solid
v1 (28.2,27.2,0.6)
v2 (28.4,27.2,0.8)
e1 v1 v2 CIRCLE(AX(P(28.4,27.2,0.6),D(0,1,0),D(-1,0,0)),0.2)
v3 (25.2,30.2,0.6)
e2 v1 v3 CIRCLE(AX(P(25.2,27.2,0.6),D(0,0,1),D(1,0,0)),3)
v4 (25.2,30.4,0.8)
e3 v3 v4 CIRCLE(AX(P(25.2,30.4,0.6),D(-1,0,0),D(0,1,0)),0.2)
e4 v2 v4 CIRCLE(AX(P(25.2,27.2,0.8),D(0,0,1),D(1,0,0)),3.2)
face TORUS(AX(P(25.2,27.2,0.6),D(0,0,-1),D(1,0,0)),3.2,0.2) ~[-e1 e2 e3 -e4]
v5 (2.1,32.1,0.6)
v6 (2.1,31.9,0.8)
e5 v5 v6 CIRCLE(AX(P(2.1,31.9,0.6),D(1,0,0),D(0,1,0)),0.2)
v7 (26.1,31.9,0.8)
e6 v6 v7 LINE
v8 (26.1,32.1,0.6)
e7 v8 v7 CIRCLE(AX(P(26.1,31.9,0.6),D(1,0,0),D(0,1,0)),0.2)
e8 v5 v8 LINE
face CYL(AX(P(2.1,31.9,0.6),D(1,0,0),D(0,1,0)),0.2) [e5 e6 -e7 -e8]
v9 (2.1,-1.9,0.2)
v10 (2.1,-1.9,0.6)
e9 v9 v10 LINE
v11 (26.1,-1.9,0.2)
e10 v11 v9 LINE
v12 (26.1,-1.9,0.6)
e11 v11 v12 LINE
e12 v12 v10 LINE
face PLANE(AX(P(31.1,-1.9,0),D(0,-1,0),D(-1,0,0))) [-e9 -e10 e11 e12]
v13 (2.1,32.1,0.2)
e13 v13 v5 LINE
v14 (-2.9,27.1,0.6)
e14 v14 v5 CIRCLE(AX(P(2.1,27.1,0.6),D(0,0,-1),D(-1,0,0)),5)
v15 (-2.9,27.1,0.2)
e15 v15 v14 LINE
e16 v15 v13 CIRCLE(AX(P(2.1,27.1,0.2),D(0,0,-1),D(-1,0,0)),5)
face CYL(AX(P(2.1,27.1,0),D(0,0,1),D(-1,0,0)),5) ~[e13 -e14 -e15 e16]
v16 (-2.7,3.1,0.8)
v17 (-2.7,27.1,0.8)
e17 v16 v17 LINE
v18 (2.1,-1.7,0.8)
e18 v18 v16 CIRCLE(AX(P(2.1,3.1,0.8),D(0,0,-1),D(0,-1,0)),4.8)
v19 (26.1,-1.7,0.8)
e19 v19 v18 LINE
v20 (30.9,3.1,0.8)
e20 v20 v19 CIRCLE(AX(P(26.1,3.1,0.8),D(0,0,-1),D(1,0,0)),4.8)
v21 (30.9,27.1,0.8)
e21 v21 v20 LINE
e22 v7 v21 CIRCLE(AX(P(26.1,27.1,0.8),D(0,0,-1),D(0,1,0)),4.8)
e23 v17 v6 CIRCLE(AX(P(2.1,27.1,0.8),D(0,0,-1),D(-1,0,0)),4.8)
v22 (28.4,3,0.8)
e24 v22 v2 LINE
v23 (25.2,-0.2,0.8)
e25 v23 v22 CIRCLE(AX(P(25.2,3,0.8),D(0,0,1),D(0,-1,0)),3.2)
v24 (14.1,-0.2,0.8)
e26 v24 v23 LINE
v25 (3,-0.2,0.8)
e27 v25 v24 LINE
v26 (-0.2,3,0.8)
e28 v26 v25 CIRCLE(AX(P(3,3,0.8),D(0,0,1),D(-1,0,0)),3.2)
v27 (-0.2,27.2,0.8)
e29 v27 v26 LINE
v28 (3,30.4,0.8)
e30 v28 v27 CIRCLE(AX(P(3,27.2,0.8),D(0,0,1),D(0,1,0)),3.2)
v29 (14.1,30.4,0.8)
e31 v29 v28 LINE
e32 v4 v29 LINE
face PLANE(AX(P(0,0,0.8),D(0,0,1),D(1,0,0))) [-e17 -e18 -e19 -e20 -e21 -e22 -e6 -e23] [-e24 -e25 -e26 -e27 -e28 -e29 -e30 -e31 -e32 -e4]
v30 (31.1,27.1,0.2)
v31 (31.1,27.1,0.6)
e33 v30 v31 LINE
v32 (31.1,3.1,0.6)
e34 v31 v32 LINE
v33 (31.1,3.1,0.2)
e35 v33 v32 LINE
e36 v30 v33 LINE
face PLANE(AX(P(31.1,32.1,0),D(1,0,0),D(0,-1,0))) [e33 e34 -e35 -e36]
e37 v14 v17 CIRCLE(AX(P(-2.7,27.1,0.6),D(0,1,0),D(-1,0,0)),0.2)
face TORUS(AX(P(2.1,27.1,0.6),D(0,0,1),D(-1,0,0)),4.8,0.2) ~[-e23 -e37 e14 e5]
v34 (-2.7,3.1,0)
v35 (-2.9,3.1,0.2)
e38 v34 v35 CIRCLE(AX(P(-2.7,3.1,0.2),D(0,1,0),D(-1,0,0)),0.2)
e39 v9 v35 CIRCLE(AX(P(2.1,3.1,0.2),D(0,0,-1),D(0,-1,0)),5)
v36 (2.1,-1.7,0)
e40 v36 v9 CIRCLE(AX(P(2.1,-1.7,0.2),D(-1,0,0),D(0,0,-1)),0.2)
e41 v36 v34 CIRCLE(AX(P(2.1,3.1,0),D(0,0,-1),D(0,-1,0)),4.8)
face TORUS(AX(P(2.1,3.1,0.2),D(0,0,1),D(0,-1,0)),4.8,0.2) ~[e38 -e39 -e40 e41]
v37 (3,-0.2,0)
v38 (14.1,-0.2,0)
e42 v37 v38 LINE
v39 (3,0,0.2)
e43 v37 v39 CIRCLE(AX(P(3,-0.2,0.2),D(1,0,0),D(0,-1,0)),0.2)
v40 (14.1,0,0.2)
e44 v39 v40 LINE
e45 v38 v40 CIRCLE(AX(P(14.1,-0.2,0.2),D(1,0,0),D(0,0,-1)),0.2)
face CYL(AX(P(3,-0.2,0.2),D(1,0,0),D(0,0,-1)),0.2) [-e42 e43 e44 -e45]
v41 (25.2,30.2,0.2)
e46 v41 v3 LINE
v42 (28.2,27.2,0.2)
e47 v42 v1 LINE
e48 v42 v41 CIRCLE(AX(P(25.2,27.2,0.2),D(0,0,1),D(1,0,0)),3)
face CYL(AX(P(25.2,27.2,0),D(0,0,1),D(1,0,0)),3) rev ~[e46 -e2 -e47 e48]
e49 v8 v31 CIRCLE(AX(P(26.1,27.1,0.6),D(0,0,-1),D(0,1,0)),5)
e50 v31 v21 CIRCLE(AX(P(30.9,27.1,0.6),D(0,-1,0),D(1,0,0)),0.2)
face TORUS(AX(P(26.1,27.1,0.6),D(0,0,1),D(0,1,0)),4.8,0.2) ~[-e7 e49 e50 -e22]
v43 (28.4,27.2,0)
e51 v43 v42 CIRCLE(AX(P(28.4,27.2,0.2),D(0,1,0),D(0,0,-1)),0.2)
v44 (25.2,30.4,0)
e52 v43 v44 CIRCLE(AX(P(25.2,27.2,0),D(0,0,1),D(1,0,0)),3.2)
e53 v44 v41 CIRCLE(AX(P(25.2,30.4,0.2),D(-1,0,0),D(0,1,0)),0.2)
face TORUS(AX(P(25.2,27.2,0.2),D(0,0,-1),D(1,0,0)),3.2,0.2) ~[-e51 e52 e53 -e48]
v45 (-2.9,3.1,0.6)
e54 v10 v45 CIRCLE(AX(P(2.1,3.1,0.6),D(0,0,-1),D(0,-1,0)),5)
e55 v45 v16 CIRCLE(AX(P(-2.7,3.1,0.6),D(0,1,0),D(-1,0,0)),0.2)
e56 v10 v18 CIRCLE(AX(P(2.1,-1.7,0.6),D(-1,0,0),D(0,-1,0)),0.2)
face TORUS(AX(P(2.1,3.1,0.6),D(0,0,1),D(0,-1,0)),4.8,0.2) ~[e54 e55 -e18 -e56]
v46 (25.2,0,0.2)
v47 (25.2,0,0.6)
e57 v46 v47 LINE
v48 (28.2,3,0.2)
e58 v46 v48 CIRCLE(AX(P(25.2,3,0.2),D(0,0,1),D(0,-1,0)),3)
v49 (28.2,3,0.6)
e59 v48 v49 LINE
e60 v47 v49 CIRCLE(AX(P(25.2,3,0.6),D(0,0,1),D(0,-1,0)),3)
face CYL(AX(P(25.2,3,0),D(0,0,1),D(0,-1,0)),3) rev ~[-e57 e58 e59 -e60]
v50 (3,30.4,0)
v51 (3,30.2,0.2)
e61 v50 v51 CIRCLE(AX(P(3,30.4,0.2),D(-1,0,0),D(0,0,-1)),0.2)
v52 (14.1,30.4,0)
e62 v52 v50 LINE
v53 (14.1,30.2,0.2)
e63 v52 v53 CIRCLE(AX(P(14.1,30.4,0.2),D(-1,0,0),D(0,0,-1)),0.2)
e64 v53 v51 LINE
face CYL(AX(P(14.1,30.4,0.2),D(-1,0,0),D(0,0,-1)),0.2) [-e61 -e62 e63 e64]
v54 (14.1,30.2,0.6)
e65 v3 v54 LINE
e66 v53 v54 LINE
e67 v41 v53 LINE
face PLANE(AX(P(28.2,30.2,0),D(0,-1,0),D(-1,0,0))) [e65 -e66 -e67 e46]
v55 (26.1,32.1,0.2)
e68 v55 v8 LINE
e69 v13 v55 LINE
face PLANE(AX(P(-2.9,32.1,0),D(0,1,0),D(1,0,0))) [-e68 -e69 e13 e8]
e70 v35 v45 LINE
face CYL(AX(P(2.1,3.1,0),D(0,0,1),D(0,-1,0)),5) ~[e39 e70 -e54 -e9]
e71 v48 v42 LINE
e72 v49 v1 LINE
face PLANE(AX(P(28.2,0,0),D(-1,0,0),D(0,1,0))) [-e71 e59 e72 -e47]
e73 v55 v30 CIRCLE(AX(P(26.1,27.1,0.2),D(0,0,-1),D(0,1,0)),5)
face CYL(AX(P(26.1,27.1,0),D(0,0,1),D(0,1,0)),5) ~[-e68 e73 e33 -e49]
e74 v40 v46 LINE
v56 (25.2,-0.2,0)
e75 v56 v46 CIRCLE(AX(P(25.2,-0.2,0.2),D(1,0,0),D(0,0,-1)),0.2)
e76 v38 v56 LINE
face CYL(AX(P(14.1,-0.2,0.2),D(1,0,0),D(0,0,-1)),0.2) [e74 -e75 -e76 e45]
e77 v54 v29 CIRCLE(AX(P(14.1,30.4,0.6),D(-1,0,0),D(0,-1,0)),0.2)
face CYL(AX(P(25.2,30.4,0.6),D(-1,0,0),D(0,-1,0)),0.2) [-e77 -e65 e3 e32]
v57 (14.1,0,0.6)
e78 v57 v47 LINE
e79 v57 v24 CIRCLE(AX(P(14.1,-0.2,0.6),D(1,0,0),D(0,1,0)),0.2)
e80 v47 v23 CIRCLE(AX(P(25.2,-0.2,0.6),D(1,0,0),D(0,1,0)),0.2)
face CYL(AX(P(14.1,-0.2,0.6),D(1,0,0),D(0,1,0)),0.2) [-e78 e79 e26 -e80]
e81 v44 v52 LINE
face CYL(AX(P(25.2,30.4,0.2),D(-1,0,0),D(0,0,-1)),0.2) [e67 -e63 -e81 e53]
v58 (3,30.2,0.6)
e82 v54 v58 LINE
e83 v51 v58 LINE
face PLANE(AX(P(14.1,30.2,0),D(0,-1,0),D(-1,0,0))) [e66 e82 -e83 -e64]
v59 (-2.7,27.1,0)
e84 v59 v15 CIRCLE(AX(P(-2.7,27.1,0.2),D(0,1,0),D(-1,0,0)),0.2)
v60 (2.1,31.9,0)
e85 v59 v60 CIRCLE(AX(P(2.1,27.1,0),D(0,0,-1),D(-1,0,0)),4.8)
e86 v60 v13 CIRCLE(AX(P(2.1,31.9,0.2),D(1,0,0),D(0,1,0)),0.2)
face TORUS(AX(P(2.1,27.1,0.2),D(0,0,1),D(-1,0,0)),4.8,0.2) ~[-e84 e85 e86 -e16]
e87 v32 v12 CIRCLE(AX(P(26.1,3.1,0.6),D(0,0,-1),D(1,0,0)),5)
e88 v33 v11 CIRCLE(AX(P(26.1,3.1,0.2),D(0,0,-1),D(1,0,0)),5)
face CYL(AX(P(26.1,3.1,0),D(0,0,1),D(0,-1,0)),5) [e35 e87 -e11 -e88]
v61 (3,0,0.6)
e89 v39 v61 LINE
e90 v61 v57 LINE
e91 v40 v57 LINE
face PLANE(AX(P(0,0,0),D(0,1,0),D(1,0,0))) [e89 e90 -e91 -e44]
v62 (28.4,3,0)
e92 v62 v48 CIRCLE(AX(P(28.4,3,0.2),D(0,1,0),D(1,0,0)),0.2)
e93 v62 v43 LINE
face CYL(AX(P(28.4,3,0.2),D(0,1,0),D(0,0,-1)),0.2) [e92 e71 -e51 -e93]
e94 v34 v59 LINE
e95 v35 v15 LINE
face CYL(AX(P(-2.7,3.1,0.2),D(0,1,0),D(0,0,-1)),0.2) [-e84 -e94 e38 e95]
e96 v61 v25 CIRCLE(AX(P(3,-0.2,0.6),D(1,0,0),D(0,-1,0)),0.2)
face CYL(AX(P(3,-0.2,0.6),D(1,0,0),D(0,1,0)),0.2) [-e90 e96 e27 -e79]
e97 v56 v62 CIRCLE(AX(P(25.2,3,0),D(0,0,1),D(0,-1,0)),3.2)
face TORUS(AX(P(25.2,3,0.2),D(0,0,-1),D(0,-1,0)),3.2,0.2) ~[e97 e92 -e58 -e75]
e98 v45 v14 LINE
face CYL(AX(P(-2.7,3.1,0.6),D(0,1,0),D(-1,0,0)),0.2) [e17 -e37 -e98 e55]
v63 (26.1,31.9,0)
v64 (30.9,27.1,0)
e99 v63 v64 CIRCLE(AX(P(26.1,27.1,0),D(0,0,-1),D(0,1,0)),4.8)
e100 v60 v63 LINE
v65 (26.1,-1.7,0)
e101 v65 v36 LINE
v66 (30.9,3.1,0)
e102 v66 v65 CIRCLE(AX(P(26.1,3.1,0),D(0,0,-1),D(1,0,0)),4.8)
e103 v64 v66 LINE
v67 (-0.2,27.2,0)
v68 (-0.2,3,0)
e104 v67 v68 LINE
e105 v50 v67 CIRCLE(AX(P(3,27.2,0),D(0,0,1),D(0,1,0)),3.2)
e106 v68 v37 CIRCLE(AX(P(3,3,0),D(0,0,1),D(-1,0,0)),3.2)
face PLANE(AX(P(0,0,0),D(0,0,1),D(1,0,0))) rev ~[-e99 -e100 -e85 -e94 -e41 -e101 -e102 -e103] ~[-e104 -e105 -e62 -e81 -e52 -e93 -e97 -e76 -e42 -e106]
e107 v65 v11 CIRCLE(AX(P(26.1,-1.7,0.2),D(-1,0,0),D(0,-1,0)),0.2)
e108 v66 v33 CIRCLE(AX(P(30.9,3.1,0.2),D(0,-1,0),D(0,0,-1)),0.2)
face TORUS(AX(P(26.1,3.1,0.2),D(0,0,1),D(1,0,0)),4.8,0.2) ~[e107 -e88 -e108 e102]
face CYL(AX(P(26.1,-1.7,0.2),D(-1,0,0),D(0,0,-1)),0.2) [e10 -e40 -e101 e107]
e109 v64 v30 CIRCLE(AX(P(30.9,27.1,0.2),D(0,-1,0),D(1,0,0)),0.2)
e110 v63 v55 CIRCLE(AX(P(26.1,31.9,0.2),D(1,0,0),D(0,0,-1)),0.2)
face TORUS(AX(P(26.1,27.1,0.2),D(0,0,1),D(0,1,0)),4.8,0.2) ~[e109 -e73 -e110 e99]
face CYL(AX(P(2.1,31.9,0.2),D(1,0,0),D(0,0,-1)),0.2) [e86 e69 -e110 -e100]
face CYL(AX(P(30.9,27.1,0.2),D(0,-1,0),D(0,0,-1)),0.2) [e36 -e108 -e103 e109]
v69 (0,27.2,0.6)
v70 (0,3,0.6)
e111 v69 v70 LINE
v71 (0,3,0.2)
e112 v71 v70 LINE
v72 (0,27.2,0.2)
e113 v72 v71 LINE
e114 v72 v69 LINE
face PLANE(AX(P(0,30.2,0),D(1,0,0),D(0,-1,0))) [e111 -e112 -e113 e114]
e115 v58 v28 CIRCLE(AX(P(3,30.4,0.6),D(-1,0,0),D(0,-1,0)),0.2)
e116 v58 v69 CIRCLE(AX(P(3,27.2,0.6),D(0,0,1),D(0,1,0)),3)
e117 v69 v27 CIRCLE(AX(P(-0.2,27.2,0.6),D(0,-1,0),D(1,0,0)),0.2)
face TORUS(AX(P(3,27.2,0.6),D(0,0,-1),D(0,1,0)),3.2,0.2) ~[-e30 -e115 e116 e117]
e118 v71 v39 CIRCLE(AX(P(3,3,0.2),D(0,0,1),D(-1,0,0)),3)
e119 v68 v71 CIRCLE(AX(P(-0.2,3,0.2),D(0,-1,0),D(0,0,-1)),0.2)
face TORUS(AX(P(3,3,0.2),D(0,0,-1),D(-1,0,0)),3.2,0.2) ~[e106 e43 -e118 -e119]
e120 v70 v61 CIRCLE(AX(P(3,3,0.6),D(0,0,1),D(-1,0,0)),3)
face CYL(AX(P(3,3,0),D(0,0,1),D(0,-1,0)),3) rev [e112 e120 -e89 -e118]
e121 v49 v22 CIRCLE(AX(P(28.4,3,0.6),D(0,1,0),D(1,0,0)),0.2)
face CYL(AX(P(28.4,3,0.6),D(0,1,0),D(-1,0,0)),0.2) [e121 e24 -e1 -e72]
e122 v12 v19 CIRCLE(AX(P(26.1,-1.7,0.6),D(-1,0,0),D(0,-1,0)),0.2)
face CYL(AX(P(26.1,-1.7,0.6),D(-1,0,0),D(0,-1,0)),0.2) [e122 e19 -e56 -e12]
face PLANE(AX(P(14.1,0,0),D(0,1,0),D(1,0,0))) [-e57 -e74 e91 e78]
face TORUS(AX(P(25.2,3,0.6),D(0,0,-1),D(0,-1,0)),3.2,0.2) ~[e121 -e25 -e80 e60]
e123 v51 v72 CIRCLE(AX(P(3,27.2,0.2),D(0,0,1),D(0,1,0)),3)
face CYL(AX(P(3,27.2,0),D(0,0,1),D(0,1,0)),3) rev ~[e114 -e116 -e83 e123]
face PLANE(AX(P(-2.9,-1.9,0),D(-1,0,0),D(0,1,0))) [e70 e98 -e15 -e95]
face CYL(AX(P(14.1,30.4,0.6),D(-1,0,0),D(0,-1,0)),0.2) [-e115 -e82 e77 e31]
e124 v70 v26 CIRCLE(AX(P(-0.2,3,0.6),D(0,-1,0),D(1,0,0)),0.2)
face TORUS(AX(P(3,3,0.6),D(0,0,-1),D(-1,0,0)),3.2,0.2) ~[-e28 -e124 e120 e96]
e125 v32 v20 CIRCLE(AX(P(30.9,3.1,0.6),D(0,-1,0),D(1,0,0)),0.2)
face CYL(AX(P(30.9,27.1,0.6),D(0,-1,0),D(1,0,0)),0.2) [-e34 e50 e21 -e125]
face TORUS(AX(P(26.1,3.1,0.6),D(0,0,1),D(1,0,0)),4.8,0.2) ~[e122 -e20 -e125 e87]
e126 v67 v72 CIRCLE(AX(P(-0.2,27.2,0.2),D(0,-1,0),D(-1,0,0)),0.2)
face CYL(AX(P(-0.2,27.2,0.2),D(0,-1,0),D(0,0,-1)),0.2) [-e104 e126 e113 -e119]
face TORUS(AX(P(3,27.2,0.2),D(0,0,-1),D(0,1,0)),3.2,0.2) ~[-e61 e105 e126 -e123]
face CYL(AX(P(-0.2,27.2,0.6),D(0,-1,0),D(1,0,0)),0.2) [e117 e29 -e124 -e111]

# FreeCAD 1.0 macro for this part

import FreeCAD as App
import Part
import Sketcher
from FreeCAD import Vector
Q = App.Units.Quantity


def edges_at(feature, points):
    """Names of the edges that pass closest to the given points."""
    edges = feature.Shape.Edges
    near = lambda p: min(range(len(edges)), key=lambda i: edges[i].distToShape(Part.Vertex(*p))[0])
    return sorted({f"Edge{near(p) + 1}" for p in points})


def add_polygon(sketch, points):
    """Adds a closed chain of lines whose ends are joined by coincident constraints."""
    first, n = sketch.GeometryCount, len(points)
    for a, b in zip(points, points[1:] + points[:1]):
        sketch.addGeometry(Part.LineSegment(App.Vector(*a, 0), App.Vector(*b, 0)), False)
    for i in range(n):
        sketch.addConstraint(Sketcher.Constraint("Coincident", first + i, 2, first + (i + 1) % n, 1))

doc = App.newDocument("Part")
body = doc.addObject("PartDesign::Body", "Body")

# Sketch on XY plane
sketch1 = body.newObject("Sketcher::SketchObject", "Sketch")
sketch1.AttachmentSupport = (doc.getObject("XY_Plane"), [""])
sketch1.MapMode = "FlatFace"
add_polygon(sketch1, [(-3, -2), (31, -2), (31, 32), (-3, 32)])  # lines 0-3
add_polygon(sketch1, [(28, 0), (0, 0), (0, 30), (28, 30)])  # lines 4-7
sketch1.addConstraint([
    Sketcher.Constraint("Horizontal", 0),
    Sketcher.Constraint("Vertical", 1),
    Sketcher.Constraint("Horizontal", 2),
    Sketcher.Constraint("Vertical", 3),
    Sketcher.Constraint("Horizontal", 4),
    Sketcher.Constraint("Vertical", 5),
    Sketcher.Constraint("Horizontal", 6),
    Sketcher.Constraint("Vertical", 7),
    Sketcher.Constraint("Coincident", 4, 2, -1, 1),
    Sketcher.Constraint("Equal", 2, 1),
    Sketcher.Constraint("DistanceX", 0, 1, 0, 2, Q("34 mm")),
    Sketcher.Constraint("DistanceX", 4, 2, 4, 1, Q("28.2 mm")),
    Sketcher.Constraint("DistanceY", 5, 1, 5, 2, Q("30.2 mm")),
    Sketcher.Constraint("DistanceX", -1, 1, 0, 2, Q("31.1 mm")),
    Sketcher.Constraint("DistanceY", 0, 2, -1, 1, Q("1.9 mm")),
])
pad1 = body.newObject("PartDesign::Pad", "Pad")
pad1.Profile = sketch1
pad1.Length = 0.8
doc.recompute()

fillet = body.newObject("PartDesign::Fillet", "Fillet")
fillet.Base = (pad1, edges_at(pad1, [
    (0, 0, 0.4),
    (0, 30.2, 0.4),
    (28.2, 30.2, 0.4),
    (28.2, 0, 0.4),
]))
fillet.Radius = 3
doc.recompute()

fillet2 = body.newObject("PartDesign::Fillet", "Fillet001")
fillet2.Base = (fillet, edges_at(fillet, [
    (31.1, 32.1, 0.4),
    (-2.9, 32.1, 0.4),
    (31.1, -1.9, 0.4),
    (-2.9, -1.9, 0.4),
]))
fillet2.Radius = 5
doc.recompute()

fillet3 = body.newObject("PartDesign::Fillet", "Fillet002")
fillet3.Base = (fillet2, edges_at(fillet2, [
    (-1.435, 30.636, 0),
    (-2.9, 15.1, 0),
    (-1.435, -0.435, 0),
    (14.1, -1.9, 0),
    (29.636, -0.435, 0),
    (31.1, 15.1, 0),
    (29.636, 30.636, 0),
    (14.1, 32.1, 0),
    (14.1, 32.1, 0.8),
    (29.636, 30.636, 0.8),
    (31.1, 15.1, 0.8),
    (29.636, -0.435, 0.8),
    (14.1, -1.9, 0.8),
    (-1.435, -0.435, 0.8),
    (-2.9, 15.1, 0.8),
    (-1.435, 30.636, 0.8),
    (0, 15.1, 0.8),
    (14.1, 0, 0.8),
    (28.2, 15.1, 0.8),
    (14.1, 30.2, 0.8),
    (14.1, 30.2, 0),
    (28.2, 15.1, 0),
    (14.1, 0, 0),
    (0, 15.1, 0),
]))
fillet3.Radius = 0.2

doc.recompute()
